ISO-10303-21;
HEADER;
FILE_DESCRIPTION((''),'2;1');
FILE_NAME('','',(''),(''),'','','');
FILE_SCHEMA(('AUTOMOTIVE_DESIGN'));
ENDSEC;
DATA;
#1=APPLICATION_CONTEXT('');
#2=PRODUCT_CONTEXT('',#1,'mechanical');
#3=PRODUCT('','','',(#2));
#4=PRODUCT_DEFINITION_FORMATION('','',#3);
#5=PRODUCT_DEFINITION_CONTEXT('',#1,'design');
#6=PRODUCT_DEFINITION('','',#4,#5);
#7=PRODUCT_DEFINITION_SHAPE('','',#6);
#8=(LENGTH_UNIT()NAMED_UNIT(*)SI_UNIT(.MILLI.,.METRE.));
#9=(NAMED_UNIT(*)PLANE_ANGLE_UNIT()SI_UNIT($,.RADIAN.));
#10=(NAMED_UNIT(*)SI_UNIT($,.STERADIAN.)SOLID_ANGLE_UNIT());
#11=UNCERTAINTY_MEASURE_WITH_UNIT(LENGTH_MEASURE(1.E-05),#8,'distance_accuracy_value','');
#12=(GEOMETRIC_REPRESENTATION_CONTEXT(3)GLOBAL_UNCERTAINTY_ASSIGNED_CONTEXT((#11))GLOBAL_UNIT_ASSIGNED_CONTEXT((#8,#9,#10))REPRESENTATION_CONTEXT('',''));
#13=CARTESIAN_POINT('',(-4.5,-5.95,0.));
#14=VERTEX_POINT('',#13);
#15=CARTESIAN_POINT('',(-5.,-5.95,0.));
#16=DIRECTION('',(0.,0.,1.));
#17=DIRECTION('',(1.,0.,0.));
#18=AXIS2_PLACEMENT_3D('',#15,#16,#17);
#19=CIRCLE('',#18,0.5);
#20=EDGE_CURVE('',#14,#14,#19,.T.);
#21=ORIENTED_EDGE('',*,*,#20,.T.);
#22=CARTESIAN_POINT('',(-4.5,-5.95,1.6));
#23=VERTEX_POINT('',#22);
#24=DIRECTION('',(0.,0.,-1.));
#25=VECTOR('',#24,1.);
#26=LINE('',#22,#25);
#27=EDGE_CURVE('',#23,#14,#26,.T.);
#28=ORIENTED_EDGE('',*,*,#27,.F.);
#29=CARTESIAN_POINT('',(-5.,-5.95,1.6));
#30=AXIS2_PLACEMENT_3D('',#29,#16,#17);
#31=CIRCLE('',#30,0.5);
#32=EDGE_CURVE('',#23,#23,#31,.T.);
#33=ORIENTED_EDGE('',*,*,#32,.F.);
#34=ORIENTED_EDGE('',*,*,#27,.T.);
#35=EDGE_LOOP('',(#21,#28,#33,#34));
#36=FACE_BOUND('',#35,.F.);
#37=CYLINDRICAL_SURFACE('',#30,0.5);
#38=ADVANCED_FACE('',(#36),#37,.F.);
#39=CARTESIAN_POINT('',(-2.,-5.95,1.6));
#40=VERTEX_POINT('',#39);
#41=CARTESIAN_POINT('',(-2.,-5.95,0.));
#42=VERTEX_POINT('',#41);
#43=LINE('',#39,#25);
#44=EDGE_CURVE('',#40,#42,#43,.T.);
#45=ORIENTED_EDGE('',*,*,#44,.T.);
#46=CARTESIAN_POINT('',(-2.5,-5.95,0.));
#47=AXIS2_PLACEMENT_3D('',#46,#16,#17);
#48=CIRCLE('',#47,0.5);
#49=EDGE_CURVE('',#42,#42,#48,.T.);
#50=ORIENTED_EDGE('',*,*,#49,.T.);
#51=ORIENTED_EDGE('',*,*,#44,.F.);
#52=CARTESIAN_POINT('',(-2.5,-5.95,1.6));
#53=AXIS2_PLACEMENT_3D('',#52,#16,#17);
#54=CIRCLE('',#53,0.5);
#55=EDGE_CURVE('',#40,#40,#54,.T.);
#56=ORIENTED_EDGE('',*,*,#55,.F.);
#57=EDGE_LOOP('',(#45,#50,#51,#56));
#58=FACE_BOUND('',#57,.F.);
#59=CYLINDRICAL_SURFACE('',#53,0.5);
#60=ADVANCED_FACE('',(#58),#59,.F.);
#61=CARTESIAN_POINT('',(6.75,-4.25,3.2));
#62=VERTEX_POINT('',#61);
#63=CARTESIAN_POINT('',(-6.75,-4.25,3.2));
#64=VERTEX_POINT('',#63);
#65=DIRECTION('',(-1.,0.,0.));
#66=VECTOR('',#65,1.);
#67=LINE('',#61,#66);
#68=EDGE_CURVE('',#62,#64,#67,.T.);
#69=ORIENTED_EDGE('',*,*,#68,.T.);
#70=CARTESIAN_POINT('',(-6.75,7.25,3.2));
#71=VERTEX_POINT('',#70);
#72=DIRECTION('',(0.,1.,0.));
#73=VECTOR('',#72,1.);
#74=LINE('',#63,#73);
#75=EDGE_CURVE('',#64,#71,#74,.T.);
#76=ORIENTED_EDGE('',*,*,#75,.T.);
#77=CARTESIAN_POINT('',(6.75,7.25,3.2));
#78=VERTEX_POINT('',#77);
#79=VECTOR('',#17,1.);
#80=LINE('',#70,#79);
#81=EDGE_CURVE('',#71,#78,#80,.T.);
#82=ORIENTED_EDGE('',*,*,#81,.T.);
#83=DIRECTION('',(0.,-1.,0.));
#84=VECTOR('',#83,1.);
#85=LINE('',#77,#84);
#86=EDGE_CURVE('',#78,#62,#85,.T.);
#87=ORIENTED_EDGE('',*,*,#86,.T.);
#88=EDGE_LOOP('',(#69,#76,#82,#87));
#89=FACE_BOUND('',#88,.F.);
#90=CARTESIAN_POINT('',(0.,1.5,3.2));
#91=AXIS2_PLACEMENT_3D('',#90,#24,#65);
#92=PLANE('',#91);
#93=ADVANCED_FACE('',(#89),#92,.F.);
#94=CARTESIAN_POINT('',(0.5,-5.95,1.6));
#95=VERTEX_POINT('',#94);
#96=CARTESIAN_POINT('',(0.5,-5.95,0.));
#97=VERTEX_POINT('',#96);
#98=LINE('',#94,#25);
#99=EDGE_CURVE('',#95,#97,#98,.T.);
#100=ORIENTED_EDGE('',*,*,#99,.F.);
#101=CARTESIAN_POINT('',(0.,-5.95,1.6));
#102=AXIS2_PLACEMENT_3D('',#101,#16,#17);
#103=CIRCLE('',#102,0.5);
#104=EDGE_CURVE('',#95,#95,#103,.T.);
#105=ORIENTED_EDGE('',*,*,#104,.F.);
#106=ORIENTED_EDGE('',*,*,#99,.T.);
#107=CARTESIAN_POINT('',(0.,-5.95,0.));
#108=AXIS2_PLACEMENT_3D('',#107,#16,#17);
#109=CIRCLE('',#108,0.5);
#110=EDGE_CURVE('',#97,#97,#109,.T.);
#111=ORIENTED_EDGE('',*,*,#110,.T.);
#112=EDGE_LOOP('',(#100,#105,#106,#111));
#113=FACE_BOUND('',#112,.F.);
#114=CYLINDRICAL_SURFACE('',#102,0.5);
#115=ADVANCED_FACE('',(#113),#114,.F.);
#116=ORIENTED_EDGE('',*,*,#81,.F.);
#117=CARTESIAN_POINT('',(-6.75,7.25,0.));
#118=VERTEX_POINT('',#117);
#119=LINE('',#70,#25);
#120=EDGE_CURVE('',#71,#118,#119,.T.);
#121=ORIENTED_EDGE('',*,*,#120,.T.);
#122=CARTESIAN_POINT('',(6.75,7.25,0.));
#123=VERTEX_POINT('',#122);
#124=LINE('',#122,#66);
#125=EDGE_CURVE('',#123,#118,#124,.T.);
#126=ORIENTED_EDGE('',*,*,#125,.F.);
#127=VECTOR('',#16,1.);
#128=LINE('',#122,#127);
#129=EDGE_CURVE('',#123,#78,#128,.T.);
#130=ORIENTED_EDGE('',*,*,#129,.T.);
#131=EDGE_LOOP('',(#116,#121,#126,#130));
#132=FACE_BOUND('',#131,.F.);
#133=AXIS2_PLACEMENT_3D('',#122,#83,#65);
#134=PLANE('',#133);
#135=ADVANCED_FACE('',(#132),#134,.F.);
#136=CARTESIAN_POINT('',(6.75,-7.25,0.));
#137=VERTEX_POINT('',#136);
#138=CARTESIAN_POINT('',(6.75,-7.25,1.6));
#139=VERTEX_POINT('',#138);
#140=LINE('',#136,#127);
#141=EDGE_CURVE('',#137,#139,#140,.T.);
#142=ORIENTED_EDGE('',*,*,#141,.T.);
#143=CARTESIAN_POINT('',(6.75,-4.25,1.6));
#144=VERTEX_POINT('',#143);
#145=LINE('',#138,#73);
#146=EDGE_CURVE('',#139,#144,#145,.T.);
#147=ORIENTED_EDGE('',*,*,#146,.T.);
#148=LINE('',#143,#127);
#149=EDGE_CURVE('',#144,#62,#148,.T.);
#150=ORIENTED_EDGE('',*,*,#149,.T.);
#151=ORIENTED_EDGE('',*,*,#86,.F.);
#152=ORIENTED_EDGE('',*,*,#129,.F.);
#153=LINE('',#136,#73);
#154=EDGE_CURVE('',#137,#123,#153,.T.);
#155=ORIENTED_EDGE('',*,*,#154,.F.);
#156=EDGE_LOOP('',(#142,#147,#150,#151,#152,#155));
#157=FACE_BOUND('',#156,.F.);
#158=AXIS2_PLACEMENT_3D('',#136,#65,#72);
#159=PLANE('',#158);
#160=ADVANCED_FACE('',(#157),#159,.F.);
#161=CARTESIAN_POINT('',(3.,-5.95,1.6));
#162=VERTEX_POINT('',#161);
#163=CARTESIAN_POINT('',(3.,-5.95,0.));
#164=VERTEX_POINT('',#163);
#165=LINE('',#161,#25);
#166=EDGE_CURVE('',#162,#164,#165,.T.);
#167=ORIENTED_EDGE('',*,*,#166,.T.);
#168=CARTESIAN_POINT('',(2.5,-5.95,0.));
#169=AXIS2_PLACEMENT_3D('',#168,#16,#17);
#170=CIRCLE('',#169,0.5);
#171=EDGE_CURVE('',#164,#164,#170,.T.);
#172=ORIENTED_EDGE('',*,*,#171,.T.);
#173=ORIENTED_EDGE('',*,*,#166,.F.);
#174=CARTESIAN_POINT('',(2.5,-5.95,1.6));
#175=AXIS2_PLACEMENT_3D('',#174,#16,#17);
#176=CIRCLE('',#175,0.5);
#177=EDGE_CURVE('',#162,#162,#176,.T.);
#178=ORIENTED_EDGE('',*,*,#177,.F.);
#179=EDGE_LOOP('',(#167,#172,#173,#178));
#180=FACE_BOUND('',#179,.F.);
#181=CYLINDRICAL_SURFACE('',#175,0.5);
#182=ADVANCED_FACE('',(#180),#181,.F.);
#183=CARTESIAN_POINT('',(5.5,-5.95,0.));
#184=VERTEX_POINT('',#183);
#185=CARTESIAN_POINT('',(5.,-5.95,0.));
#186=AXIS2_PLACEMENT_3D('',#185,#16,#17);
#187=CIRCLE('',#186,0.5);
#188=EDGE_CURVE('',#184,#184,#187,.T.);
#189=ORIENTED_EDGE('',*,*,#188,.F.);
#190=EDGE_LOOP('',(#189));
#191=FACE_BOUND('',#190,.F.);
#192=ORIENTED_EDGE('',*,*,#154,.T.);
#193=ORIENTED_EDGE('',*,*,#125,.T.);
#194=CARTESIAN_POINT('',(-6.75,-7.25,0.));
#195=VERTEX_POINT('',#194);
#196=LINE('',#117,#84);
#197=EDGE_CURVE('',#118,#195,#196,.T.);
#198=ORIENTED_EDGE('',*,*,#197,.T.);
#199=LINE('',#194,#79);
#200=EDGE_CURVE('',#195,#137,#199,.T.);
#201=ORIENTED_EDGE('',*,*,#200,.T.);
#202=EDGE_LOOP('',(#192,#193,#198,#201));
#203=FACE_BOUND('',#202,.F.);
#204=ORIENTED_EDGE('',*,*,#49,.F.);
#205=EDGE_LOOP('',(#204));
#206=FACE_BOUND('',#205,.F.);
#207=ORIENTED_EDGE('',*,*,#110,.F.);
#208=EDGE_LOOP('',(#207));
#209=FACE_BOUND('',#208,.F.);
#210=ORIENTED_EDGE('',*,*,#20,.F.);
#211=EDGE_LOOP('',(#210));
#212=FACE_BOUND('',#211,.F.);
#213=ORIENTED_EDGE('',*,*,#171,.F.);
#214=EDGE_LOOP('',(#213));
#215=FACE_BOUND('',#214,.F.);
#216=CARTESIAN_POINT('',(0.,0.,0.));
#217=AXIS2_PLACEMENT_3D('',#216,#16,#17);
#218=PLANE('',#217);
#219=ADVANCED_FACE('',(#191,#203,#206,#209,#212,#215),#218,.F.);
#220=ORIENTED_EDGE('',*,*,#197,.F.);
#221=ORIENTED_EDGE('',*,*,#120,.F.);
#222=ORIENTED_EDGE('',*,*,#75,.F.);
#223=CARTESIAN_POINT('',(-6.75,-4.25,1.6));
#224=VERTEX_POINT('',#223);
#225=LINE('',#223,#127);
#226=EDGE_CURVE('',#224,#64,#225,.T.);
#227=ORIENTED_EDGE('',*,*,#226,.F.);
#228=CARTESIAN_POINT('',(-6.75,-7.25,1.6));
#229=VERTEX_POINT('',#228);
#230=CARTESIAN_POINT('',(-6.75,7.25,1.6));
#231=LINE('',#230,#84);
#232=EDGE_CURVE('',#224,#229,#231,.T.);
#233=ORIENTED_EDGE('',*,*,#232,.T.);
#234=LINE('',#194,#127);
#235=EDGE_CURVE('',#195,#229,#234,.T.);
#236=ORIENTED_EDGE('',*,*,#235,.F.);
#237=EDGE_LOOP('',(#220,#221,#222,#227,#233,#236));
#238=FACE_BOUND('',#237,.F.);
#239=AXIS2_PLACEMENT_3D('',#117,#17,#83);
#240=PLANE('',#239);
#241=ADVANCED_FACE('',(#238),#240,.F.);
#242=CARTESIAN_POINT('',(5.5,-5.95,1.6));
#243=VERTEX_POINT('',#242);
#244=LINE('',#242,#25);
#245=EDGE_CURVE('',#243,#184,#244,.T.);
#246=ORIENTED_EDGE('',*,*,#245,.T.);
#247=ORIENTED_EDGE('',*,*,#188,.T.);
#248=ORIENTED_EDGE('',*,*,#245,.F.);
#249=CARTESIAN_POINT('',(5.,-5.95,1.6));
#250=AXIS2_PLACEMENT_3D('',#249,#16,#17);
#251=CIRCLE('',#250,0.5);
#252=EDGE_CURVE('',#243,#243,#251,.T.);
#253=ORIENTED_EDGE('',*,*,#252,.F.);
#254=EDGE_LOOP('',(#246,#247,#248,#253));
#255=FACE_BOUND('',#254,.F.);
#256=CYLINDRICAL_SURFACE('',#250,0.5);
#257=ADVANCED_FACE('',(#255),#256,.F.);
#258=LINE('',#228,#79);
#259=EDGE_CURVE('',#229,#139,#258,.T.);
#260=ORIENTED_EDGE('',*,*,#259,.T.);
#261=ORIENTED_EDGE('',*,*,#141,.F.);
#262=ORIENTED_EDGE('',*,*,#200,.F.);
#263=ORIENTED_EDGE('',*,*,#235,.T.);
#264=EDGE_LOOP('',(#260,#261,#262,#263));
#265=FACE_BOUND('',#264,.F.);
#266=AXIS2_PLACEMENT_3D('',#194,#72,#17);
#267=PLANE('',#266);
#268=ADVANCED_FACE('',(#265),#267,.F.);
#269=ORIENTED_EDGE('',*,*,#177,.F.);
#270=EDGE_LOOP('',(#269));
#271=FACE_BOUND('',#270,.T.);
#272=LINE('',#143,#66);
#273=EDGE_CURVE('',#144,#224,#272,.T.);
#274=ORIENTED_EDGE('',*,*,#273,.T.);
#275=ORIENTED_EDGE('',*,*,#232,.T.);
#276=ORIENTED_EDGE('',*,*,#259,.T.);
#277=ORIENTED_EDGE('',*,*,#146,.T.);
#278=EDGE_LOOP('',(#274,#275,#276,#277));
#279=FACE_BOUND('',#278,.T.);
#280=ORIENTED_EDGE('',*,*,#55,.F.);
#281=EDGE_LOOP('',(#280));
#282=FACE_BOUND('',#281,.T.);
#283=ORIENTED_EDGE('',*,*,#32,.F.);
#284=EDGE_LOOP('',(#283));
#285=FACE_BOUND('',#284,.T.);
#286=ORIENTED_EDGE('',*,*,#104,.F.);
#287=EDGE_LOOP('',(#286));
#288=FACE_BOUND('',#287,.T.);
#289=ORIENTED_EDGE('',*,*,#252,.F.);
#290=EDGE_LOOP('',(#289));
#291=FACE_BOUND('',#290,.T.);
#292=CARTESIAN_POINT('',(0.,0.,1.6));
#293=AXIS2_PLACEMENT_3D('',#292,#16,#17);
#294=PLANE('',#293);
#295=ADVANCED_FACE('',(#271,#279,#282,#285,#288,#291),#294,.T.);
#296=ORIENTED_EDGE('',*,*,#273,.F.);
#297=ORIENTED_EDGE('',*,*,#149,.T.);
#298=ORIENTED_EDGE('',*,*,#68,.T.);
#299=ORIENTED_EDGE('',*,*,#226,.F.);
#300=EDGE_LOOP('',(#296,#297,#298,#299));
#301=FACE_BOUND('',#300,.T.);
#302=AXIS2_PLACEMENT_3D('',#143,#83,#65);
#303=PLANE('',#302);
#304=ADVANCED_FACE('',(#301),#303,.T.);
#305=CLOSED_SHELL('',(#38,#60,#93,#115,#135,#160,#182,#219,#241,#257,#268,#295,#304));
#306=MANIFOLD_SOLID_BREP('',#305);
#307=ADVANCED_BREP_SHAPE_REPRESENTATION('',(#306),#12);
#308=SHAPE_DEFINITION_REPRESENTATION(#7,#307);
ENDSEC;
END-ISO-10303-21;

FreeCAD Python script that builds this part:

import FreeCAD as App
import Part
import Sketcher
from FreeCAD import Vector
Q = App.Units.Quantity


def add_polygon(sketch, points):
    """Adds a closed chain of lines whose ends are joined by coincident constraints."""
    first, n = sketch.GeometryCount, len(points)
    for a, b in zip(points, points[1:] + points[:1]):
        sketch.addGeometry(Part.LineSegment(App.Vector(*a, 0), App.Vector(*b, 0)), False)
    for i in range(n):
        sketch.addConstraint(Sketcher.Constraint("Coincident", first + i, 2, first + (i + 1) % n, 1))

doc = App.newDocument("Part")
body = doc.addObject("PartDesign::Body", "Body")

# Sketch on XY plane
sketch1 = body.newObject("Sketcher::SketchObject", "Sketch")
sketch1.AttachmentSupport = (doc.getObject("XY_Plane"), [""])
sketch1.MapMode = "FlatFace"
add_polygon(sketch1, [(-7, 7), (-7, -7), (7, -7), (7, 7)])  # lines 0-3
sketch1.addConstraint(Sketcher.Constraint("Vertical", 0))
sketch1.addConstraint(Sketcher.Constraint("Horizontal", 1))
sketch1.addConstraint(Sketcher.Constraint("Vertical", 2))
sketch1.addConstraint(Sketcher.Constraint("Horizontal", 3))
sketch1.addConstraint(Sketcher.Constraint("Symmetric", 0, 2, 2, 2, -1, 1))
sketch1.addConstraint(Sketcher.Constraint("DistanceX", 0, 2, -1, 1, Q("6.75 mm")))
sketch1.addConstraint(Sketcher.Constraint("DistanceY", 0, 2, 0, 1, Q("14.5 mm")))
pad1 = body.newObject("PartDesign::Pad", "Pad")
pad1.Profile = sketch1
pad1.Length = 1.6

# Sketch on XY plane
sketch2 = body.newObject("Sketcher::SketchObject", "Sketch001")
sketch2.AttachmentSupport = (doc.getObject("XY_Plane"), [""])
sketch2.MapMode = "FlatFace"
sketch2.AttachmentOffset = App.Placement(Vector(0, 0, 1.6), App.Rotation())
sketch2.addGeometry(Part.Circle(Vector(-5, -6, 0), Vector(0, 0, 1), 0.5), False)
sketch2.addGeometry(Part.Circle(Vector(-2.5, -6, 0), Vector(0, 0, 1), 0.5), False)
sketch2.addGeometry(Part.Circle(Vector(0, -6, 0), Vector(0, 0, 1), 0.5), False)
sketch2.addGeometry(Part.Circle(Vector(2.5, -6, 0), Vector(0, 0, 1), 0.5), False)
sketch2.addGeometry(Part.Circle(Vector(5, -6, 0), Vector(0, 0, 1), 0.5), False)
sketch2.addConstraint(Sketcher.Constraint("Equal", 0, 1))
sketch2.addConstraint(Sketcher.Constraint("Equal", 1, 2))
sketch2.addConstraint(Sketcher.Constraint("Equal", 2, 3))
sketch2.addConstraint(Sketcher.Constraint("Equal", 3, 4))
sketch2.addConstraint(Sketcher.Constraint("Symmetric", 1, 3, 3, 3, -2))
sketch2.addConstraint(Sketcher.Constraint("Symmetric", 0, 3, 4, 3, -2))
sketch2.addConstraint(Sketcher.Constraint("PointOnObject", 2, 3, -2))
sketch2.addConstraint(Sketcher.Constraint("Horizontal", 0, 3, 1, 3))
sketch2.addConstraint(Sketcher.Constraint("Horizontal", 1, 3, 2, 3))
sketch2.addConstraint(Sketcher.Constraint("Diameter", 0, Q("1 mm")))
sketch2.addConstraint(Sketcher.Constraint("DistanceX", 0, 3, -1, 1, Q("5 mm")))
sketch2.addConstraint(Sketcher.Constraint("DistanceX", 1, 3, 3, 3, Q("5 mm")))
sketch2.addConstraint(Sketcher.Constraint("DistanceY", 0, 3, -1, 1, Q("5.95 mm")))
pocket1 = body.newObject("PartDesign::Pocket", "Pocket")
pocket1.Profile = sketch2
pocket1.Type = "ThroughAll"

# Sketch on XY plane
sketch3 = body.newObject("Sketcher::SketchObject", "Sketch002")
sketch3.AttachmentSupport = (doc.getObject("XY_Plane"), [""])
sketch3.MapMode = "FlatFace"
sketch3.AttachmentOffset = App.Placement(Vector(0, 0, 1.6), App.Rotation())
add_polygon(sketch3, [(7, 7), (-7, 7), (-7, -4), (7, -4)])  # lines 0-3
sketch3.addConstraint(Sketcher.Constraint("Horizontal", 0))
sketch3.addConstraint(Sketcher.Constraint("Vertical", 1))
sketch3.addConstraint(Sketcher.Constraint("Horizontal", 2))
sketch3.addConstraint(Sketcher.Constraint("Vertical", 3))
sketch3.addConstraint(Sketcher.Constraint("DistanceX", 0, 2, 0, 1, Q("13.5 mm")))
sketch3.addConstraint(Sketcher.Constraint("DistanceY", 1, 2, 1, 1, Q("11.5 mm")))
sketch3.addConstraint(Sketcher.Constraint("DistanceX", 0, 2, -1, 1, Q("6.75 mm")))
sketch3.addConstraint(Sketcher.Constraint("DistanceY", -1, 1, 0, 2, Q("7.25 mm")))
pad2 = body.newObject("PartDesign::Pad", "Pad001")
pad2.Profile = sketch3
pad2.Length = 1.6

doc.recompute()
